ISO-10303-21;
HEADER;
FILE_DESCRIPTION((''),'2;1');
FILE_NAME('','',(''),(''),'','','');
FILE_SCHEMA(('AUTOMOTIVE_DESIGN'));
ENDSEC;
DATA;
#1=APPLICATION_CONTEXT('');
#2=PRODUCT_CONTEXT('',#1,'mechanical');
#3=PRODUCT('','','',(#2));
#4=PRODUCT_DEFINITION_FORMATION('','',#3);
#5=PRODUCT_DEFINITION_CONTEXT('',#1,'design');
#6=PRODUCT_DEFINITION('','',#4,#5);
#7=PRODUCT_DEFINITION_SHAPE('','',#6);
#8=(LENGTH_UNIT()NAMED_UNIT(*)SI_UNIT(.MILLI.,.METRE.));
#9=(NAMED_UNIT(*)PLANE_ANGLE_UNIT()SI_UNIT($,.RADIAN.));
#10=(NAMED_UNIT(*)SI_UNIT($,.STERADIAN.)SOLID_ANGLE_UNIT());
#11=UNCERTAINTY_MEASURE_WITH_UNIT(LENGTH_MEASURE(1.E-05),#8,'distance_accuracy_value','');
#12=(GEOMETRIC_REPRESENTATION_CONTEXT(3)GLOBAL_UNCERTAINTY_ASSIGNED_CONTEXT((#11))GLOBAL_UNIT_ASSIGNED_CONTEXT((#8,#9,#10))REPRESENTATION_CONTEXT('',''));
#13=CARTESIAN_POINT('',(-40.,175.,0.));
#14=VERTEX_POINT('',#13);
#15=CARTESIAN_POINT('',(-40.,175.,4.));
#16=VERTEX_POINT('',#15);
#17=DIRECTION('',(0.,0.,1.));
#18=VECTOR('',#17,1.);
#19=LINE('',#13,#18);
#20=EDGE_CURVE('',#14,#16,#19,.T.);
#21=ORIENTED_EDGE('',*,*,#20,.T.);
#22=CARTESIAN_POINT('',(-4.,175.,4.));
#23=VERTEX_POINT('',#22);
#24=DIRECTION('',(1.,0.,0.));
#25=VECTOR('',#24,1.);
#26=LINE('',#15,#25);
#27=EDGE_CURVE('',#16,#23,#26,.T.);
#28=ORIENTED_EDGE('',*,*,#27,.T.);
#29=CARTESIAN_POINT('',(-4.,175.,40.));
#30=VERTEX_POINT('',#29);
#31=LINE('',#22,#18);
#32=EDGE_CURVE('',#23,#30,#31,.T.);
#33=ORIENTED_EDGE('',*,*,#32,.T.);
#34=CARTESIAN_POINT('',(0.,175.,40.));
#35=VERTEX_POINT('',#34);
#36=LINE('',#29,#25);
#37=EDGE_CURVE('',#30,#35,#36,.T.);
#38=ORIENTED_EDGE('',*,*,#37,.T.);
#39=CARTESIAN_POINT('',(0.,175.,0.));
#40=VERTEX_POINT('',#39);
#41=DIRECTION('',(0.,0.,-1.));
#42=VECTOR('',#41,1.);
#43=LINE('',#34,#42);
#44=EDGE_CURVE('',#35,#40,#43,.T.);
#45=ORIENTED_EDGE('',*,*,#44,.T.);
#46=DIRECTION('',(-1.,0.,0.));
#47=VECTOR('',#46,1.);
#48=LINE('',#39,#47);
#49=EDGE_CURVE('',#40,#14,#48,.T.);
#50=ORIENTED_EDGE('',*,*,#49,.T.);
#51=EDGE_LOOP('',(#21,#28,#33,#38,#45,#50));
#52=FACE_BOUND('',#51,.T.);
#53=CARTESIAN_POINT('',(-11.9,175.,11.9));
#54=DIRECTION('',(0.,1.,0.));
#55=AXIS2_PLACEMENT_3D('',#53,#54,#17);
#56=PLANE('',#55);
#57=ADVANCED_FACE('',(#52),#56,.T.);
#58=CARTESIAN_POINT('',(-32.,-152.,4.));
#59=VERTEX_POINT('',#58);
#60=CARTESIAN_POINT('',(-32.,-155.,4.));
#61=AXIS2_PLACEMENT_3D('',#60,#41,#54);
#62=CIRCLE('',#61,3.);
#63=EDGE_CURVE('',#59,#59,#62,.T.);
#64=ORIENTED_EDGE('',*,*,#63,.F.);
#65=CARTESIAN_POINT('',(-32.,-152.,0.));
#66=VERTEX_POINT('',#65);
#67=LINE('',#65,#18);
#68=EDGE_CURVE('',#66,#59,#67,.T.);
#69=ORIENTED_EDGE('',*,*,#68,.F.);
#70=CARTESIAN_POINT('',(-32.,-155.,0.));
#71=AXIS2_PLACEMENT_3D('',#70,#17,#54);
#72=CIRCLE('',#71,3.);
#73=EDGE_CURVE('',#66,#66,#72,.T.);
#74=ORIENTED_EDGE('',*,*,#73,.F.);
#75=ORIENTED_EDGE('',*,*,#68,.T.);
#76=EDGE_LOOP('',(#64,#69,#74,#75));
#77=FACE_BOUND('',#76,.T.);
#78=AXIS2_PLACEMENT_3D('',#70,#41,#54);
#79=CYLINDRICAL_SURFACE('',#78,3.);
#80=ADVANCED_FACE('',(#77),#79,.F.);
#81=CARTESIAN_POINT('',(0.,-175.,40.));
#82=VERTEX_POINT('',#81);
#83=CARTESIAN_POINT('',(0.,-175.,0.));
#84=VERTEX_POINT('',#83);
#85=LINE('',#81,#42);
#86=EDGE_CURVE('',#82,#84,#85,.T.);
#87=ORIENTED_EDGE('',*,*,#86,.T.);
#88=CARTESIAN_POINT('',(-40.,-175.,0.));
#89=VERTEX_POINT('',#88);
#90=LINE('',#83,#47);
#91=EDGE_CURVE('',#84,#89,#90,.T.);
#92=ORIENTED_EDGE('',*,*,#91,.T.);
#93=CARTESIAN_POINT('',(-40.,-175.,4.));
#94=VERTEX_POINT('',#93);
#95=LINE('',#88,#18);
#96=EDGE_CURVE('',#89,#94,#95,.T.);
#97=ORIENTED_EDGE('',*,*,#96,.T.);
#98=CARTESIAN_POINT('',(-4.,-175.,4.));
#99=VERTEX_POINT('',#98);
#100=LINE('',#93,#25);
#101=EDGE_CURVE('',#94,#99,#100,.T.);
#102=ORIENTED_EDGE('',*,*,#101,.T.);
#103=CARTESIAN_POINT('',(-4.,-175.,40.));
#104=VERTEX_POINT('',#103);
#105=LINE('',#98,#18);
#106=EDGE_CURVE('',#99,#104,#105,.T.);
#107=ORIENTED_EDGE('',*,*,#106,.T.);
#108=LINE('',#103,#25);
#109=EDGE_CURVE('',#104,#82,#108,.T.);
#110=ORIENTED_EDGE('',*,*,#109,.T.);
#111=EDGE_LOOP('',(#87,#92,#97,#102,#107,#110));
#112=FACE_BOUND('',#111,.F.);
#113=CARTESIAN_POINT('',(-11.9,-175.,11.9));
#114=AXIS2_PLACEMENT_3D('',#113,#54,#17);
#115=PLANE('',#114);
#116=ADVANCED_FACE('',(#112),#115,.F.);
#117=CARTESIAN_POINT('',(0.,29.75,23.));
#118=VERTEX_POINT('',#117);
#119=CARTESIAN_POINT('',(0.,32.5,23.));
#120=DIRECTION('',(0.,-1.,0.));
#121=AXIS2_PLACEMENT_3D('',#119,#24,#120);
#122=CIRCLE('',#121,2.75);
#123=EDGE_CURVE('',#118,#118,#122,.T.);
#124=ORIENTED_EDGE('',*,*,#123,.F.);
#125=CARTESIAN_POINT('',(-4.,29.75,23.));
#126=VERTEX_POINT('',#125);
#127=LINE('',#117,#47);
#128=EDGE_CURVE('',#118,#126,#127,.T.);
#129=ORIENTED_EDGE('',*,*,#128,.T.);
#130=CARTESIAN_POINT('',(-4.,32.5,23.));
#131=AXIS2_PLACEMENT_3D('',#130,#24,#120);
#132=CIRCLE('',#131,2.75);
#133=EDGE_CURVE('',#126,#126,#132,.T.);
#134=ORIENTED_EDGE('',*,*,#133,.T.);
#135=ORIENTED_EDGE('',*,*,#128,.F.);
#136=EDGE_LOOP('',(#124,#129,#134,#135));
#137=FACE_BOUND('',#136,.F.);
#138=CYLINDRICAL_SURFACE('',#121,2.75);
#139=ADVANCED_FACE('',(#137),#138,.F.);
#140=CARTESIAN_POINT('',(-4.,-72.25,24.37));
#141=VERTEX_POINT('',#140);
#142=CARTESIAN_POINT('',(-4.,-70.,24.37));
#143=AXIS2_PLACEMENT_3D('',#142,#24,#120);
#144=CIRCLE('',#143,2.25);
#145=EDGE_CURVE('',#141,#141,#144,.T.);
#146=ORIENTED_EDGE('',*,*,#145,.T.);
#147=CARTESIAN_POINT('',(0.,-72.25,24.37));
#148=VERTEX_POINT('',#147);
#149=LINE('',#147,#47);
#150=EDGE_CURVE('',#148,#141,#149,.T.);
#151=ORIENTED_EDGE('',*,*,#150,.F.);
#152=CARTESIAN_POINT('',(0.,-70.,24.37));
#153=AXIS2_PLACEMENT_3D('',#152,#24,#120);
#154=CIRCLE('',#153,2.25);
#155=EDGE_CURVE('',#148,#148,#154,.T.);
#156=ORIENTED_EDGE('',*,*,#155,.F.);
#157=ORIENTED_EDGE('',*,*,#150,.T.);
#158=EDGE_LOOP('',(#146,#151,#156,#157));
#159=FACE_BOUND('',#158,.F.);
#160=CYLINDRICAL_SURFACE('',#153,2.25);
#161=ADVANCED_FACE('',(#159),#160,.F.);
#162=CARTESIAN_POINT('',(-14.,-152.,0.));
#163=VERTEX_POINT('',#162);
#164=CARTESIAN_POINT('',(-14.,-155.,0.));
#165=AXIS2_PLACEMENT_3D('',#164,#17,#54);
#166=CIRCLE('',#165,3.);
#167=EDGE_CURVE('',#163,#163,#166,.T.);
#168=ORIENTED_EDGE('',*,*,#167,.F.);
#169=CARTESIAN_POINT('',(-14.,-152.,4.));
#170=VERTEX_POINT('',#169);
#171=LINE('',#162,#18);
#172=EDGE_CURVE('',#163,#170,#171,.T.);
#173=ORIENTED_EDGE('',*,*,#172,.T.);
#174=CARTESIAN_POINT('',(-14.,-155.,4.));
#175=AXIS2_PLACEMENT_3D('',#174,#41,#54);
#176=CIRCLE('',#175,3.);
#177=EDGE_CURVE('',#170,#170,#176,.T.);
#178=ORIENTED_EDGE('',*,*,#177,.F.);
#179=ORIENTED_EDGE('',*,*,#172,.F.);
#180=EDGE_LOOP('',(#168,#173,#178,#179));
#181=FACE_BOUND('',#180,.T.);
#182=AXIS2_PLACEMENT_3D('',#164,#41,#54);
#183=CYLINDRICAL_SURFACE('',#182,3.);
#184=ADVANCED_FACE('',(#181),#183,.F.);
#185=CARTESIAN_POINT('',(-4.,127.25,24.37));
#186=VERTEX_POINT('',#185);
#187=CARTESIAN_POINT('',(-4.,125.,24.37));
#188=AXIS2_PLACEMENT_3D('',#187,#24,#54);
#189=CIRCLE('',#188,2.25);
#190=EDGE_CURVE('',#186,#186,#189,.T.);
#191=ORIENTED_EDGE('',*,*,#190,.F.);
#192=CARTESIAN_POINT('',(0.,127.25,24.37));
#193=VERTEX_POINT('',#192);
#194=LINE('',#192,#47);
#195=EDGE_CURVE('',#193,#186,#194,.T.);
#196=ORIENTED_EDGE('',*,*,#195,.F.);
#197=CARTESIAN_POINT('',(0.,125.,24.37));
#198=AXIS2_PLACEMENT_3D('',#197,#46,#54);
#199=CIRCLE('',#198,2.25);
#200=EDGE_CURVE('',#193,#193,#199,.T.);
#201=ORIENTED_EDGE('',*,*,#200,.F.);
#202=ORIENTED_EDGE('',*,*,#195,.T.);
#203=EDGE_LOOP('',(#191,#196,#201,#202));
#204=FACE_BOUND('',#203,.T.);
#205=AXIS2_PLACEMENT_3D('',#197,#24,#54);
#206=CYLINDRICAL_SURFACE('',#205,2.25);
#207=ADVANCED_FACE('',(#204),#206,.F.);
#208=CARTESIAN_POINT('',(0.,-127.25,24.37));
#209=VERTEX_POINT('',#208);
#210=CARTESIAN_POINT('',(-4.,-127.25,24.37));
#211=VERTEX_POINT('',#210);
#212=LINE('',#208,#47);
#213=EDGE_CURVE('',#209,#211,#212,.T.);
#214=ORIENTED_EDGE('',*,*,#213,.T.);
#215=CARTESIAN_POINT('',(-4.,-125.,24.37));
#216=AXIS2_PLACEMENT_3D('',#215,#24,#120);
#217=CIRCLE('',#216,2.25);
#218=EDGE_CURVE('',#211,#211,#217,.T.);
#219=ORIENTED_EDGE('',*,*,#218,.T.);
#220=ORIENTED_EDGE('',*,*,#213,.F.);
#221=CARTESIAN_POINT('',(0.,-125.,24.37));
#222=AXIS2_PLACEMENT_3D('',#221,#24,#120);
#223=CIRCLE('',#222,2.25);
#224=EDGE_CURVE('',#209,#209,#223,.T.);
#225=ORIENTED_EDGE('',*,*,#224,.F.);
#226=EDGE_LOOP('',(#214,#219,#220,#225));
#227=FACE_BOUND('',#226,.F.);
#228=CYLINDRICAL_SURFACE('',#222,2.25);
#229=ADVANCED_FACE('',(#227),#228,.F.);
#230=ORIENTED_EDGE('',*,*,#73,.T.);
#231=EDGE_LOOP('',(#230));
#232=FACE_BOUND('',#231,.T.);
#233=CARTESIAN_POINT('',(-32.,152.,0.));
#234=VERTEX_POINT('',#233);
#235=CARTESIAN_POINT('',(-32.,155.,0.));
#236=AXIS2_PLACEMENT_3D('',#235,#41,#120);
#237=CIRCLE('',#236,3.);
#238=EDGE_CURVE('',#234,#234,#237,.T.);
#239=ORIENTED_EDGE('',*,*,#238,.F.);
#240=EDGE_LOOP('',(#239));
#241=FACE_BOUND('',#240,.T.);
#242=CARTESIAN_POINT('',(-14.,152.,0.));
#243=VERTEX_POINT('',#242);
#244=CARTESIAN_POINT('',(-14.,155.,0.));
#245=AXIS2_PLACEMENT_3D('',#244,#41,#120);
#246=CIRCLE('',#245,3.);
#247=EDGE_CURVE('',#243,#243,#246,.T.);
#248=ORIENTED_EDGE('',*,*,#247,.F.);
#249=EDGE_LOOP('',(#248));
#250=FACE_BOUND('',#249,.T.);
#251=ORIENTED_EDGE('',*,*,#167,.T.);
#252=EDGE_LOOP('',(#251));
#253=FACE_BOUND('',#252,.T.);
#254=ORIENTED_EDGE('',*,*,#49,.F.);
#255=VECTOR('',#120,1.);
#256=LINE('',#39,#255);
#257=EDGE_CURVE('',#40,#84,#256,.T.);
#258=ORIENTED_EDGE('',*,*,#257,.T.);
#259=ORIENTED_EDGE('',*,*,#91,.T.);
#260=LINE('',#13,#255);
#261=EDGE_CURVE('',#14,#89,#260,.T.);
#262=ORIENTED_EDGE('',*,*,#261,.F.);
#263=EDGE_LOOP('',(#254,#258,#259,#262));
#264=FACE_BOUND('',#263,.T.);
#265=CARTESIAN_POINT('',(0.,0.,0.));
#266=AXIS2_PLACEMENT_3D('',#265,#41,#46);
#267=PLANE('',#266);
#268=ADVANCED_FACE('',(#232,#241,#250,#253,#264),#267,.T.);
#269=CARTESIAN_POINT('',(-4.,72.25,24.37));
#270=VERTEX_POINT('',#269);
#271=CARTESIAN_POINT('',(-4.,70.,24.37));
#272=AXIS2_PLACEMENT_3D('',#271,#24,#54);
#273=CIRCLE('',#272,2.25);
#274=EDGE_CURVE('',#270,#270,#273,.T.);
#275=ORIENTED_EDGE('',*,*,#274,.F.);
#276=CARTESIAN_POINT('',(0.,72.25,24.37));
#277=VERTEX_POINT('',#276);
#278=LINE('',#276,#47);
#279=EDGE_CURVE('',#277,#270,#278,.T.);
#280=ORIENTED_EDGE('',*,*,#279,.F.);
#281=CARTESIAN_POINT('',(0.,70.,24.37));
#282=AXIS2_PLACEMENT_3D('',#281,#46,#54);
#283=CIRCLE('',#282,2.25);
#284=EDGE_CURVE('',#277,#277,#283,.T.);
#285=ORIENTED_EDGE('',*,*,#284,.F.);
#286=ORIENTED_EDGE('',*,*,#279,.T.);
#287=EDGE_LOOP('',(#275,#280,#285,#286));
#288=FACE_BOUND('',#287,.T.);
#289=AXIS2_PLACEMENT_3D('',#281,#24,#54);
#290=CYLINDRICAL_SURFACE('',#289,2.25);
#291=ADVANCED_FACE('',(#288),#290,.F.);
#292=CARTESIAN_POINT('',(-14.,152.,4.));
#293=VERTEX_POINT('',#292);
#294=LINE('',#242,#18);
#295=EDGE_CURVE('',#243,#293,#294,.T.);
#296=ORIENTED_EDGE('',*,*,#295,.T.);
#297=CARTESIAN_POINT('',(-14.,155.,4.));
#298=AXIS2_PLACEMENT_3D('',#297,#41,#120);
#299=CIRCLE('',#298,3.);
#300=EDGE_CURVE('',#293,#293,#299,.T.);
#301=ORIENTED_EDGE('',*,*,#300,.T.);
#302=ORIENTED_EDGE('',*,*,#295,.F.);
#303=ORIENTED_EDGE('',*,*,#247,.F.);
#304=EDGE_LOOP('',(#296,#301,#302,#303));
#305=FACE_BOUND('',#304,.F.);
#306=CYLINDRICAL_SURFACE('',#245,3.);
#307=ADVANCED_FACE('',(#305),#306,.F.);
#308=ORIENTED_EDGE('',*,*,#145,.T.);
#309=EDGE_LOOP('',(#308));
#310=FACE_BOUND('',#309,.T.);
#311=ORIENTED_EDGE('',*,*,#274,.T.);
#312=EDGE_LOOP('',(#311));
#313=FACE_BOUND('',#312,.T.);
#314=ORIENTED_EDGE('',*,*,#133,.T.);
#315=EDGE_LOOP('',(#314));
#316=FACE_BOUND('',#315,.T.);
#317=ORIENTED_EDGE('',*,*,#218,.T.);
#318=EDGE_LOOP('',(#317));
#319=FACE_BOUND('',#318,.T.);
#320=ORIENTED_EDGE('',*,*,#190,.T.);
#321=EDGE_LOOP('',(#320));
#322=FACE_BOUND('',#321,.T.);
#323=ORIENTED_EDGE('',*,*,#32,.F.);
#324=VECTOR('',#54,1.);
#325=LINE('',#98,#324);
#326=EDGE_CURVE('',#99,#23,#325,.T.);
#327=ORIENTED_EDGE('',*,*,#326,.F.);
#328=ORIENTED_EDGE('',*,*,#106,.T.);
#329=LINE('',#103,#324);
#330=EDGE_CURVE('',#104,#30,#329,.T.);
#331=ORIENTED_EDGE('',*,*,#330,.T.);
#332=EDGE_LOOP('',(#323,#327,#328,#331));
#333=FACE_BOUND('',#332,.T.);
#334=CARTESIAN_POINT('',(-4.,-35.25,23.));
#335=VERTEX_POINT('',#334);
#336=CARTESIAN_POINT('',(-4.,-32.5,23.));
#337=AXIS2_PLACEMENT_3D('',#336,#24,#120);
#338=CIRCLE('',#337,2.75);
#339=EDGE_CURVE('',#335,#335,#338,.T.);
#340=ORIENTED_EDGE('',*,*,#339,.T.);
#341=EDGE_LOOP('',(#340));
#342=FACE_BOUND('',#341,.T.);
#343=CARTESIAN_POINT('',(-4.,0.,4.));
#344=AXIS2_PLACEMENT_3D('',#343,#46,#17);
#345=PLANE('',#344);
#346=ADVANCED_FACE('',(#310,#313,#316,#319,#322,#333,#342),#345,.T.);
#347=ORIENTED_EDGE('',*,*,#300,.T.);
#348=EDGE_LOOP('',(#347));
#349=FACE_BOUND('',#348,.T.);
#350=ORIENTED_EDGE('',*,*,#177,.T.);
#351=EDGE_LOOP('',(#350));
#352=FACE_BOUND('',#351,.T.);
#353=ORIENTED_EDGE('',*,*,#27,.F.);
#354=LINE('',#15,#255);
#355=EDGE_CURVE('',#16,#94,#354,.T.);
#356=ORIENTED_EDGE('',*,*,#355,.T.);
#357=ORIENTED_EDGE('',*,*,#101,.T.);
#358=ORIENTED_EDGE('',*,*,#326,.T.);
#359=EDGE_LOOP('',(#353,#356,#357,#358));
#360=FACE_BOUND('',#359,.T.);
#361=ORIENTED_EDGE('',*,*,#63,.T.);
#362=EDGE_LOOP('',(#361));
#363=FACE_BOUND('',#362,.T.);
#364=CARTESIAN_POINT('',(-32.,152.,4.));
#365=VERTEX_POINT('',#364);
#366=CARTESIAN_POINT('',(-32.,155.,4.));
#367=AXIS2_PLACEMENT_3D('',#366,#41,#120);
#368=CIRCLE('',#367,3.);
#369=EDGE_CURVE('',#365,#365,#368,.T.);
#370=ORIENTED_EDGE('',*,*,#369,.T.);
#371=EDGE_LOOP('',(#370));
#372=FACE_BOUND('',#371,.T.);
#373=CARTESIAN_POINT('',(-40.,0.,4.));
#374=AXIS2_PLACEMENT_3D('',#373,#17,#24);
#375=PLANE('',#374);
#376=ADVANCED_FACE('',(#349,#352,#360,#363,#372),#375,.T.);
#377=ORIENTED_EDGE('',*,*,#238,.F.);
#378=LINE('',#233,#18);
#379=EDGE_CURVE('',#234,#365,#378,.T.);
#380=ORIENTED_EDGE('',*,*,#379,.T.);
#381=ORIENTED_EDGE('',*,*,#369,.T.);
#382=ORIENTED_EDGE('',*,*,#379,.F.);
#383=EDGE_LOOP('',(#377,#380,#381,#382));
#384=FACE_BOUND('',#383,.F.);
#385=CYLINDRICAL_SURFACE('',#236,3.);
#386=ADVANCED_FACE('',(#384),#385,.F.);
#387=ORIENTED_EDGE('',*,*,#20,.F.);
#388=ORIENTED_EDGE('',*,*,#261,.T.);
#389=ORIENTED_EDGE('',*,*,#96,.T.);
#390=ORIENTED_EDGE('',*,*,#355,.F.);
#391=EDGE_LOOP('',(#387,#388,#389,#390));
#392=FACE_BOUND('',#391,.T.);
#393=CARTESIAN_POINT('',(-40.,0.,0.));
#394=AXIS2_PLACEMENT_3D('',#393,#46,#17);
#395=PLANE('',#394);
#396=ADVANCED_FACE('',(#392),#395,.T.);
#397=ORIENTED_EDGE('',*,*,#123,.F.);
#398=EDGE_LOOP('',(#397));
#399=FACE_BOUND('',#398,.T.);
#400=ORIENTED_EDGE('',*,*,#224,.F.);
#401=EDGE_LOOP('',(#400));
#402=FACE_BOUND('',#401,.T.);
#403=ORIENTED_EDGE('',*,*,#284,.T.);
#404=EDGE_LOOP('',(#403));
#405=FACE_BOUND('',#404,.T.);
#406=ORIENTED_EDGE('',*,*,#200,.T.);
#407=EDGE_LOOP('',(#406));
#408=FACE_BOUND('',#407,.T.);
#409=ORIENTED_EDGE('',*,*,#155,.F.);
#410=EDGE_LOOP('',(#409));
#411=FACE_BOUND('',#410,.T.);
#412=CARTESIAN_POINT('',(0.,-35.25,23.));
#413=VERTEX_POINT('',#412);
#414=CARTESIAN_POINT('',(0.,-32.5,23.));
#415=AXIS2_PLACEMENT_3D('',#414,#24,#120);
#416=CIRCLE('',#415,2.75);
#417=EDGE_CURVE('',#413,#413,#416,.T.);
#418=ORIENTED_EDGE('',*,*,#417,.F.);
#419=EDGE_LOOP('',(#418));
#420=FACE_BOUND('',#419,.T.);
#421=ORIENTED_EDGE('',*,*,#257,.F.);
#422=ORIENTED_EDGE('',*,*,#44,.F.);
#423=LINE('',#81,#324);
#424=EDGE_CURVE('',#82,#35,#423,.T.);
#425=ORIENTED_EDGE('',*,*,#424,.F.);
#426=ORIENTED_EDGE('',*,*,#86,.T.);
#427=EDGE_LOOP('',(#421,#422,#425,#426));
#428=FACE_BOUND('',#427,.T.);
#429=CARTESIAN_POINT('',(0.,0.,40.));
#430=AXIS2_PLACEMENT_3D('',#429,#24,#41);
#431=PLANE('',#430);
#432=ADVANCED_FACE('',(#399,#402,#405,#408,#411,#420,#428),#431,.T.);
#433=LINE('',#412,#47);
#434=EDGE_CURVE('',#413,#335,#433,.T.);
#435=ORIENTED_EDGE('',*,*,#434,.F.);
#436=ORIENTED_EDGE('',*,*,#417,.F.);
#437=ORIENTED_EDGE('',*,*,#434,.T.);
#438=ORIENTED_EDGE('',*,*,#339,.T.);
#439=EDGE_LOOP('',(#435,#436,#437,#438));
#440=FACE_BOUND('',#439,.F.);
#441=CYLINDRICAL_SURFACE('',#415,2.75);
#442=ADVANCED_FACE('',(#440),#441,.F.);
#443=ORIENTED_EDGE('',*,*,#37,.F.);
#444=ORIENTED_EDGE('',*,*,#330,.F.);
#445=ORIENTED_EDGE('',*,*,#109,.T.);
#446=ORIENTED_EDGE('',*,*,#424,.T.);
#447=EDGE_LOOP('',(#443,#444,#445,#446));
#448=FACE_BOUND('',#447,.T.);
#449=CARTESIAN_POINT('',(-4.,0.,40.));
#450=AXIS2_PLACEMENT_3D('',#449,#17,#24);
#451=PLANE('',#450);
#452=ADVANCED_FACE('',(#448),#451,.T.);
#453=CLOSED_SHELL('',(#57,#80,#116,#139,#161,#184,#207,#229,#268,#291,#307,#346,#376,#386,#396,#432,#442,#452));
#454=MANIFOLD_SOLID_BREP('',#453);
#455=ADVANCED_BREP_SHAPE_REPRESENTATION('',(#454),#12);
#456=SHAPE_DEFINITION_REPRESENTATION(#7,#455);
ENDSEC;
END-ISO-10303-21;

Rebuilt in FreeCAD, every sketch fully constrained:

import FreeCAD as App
import Part
import Sketcher

V = App.Vector


def add_polygon(sketch, points):
    """Adds a closed chain of lines whose ends are joined by coincident constraints."""
    first, n = sketch.GeometryCount, len(points)
    for a, b in zip(points, points[1:] + points[:1]):
        sketch.addGeometry(Part.LineSegment(App.Vector(*a, 0), App.Vector(*b, 0)), False)
    for i in range(n):
        sketch.addConstraint(Sketcher.Constraint("Coincident", first + i, 2, first + (i + 1) % n, 1))

doc = App.newDocument("Part")
body = doc.addObject("PartDesign::Body", "Body")

# Sketch on XZ plane
sketch1 = body.newObject("Sketcher::SketchObject", "Sketch")
sketch1.AttachmentSupport = (doc.getObject("XZ_Plane"), [""])
sketch1.MapMode = "FlatFace"
add_polygon(sketch1, [(-4, 4), (-40, 4), (-40, 0), (0, 0), (0, 40), (-4, 40)])  # lines 0-5
sketch1.addConstraint([
    Sketcher.Constraint("Horizontal", 0),
    Sketcher.Constraint("Vertical", 1),
    Sketcher.Constraint("Horizontal", 2),
    Sketcher.Constraint("Vertical", 3),
    Sketcher.Constraint("Horizontal", 4),
    Sketcher.Constraint("Vertical", 5),
    Sketcher.Constraint("Coincident", 2, 2, -1, 1),
    Sketcher.Constraint("Equal", 4, 1),
    Sketcher.Constraint("Equal", 2, 3),
    Sketcher.Constraint("DistanceX", 0, 2, 0, 1, 36.0),
    Sketcher.Constraint("DistanceX", 2, 1, 2, 2, 40.0),
])
pad1 = body.newObject("PartDesign::Pad", "Pad")
pad1.Profile = sketch1
pad1.Length = 350
pad1.Midplane = True

# Sketch on XY plane
sketch2 = body.newObject("Sketcher::SketchObject", "Sketch001")
sketch2.AttachmentSupport = (doc.getObject("XY_Plane"), [""])
sketch2.MapMode = "FlatFace"
sketch2.addGeometry([
    Part.Circle(V(-32, 155, 0), V(0, 0, 1), 3),
    Part.Circle(V(-14, 155, 0), V(0, 0, 1), 3),
], False)
sketch2.addConstraint([
    Sketcher.Constraint("Equal", 0, 1),
    Sketcher.Constraint("Horizontal", 0, 3, 1, 3),
    Sketcher.Constraint("Diameter", 0, 6.0),
    Sketcher.Constraint("DistanceY", -1, 1, 0, 3, 155.0),
    Sketcher.Constraint("DistanceX", 0, 3, -1, 1, 32.0),
    Sketcher.Constraint("DistanceX", 1, 3, -1, 1, 14.0),
])
pocket1 = body.newObject("PartDesign::Pocket", "Pocket")
pocket1.Profile = sketch2
pocket1.Type = "ThroughAll"
pocket1.Reversed = True
doc.recompute()

mirrored = body.newObject("PartDesign::Mirrored", "Mirrored")
mirrored.Originals = [pocket1]
mirrored.MirrorPlane = (doc.getObject("XZ_Plane"), [""])
body.Tip = mirrored

# Sketch on YZ plane
sketch3 = body.newObject("Sketcher::SketchObject", "Sketch002")
sketch3.AttachmentSupport = (doc.getObject("YZ_Plane"), [""])
sketch3.MapMode = "FlatFace"
sketch3.addGeometry([
    Part.Circle(V(32.5, 23, 0), V(0, 0, 1), 2.75),
    Part.Circle(V(-32.5, 23, 0), V(0, 0, 1), 2.75),
], False)
sketch3.addConstraint([
    Sketcher.Constraint("Equal", 0, 1),
    Sketcher.Constraint("Symmetric", 0, 3, 1, 3, -2),
    Sketcher.Constraint("Diameter", 0, 5.5),
    Sketcher.Constraint("DistanceX", -1, 1, 0, 3, 32.5),
    Sketcher.Constraint("DistanceY", -1, 1, 0, 3, 23.0),
])
pocket2 = body.newObject("PartDesign::Pocket", "Pocket001")
pocket2.Profile = sketch3
pocket2.Type = "ThroughAll"

# Sketch on YZ plane
sketch4 = body.newObject("Sketcher::SketchObject", "Sketch003")
sketch4.AttachmentSupport = (doc.getObject("YZ_Plane"), [""])
sketch4.MapMode = "FlatFace"
sketch4.addGeometry([
    Part.Circle(V(-70, 24.37, 0), V(0, 0, 1), 2.25),
    Part.Circle(V(-125, 24.37, 0), V(0, 0, 1), 2.25),
], False)
sketch4.addConstraint([
    Sketcher.Constraint("Equal", 0, 1),
    Sketcher.Constraint("Horizontal", 0, 3, 1, 3),
    Sketcher.Constraint("Diameter", 0, 4.5),
    Sketcher.Constraint("DistanceX", 0, 3, -1, 1, 70.0),
    Sketcher.Constraint("DistanceX", 1, 3, -1, 1, 125.0),
    Sketcher.Constraint("DistanceY", -1, 1, 0, 3, 24.37),
])
pocket3 = body.newObject("PartDesign::Pocket", "Pocket002")
pocket3.Profile = sketch4
pocket3.Type = "ThroughAll"
doc.recompute()

mirrored2 = body.newObject("PartDesign::Mirrored", "Mirrored001")
mirrored2.Originals = [pocket3]
mirrored2.MirrorPlane = (doc.getObject("XZ_Plane"), [""])
body.Tip = mirrored2

doc.recompute()
